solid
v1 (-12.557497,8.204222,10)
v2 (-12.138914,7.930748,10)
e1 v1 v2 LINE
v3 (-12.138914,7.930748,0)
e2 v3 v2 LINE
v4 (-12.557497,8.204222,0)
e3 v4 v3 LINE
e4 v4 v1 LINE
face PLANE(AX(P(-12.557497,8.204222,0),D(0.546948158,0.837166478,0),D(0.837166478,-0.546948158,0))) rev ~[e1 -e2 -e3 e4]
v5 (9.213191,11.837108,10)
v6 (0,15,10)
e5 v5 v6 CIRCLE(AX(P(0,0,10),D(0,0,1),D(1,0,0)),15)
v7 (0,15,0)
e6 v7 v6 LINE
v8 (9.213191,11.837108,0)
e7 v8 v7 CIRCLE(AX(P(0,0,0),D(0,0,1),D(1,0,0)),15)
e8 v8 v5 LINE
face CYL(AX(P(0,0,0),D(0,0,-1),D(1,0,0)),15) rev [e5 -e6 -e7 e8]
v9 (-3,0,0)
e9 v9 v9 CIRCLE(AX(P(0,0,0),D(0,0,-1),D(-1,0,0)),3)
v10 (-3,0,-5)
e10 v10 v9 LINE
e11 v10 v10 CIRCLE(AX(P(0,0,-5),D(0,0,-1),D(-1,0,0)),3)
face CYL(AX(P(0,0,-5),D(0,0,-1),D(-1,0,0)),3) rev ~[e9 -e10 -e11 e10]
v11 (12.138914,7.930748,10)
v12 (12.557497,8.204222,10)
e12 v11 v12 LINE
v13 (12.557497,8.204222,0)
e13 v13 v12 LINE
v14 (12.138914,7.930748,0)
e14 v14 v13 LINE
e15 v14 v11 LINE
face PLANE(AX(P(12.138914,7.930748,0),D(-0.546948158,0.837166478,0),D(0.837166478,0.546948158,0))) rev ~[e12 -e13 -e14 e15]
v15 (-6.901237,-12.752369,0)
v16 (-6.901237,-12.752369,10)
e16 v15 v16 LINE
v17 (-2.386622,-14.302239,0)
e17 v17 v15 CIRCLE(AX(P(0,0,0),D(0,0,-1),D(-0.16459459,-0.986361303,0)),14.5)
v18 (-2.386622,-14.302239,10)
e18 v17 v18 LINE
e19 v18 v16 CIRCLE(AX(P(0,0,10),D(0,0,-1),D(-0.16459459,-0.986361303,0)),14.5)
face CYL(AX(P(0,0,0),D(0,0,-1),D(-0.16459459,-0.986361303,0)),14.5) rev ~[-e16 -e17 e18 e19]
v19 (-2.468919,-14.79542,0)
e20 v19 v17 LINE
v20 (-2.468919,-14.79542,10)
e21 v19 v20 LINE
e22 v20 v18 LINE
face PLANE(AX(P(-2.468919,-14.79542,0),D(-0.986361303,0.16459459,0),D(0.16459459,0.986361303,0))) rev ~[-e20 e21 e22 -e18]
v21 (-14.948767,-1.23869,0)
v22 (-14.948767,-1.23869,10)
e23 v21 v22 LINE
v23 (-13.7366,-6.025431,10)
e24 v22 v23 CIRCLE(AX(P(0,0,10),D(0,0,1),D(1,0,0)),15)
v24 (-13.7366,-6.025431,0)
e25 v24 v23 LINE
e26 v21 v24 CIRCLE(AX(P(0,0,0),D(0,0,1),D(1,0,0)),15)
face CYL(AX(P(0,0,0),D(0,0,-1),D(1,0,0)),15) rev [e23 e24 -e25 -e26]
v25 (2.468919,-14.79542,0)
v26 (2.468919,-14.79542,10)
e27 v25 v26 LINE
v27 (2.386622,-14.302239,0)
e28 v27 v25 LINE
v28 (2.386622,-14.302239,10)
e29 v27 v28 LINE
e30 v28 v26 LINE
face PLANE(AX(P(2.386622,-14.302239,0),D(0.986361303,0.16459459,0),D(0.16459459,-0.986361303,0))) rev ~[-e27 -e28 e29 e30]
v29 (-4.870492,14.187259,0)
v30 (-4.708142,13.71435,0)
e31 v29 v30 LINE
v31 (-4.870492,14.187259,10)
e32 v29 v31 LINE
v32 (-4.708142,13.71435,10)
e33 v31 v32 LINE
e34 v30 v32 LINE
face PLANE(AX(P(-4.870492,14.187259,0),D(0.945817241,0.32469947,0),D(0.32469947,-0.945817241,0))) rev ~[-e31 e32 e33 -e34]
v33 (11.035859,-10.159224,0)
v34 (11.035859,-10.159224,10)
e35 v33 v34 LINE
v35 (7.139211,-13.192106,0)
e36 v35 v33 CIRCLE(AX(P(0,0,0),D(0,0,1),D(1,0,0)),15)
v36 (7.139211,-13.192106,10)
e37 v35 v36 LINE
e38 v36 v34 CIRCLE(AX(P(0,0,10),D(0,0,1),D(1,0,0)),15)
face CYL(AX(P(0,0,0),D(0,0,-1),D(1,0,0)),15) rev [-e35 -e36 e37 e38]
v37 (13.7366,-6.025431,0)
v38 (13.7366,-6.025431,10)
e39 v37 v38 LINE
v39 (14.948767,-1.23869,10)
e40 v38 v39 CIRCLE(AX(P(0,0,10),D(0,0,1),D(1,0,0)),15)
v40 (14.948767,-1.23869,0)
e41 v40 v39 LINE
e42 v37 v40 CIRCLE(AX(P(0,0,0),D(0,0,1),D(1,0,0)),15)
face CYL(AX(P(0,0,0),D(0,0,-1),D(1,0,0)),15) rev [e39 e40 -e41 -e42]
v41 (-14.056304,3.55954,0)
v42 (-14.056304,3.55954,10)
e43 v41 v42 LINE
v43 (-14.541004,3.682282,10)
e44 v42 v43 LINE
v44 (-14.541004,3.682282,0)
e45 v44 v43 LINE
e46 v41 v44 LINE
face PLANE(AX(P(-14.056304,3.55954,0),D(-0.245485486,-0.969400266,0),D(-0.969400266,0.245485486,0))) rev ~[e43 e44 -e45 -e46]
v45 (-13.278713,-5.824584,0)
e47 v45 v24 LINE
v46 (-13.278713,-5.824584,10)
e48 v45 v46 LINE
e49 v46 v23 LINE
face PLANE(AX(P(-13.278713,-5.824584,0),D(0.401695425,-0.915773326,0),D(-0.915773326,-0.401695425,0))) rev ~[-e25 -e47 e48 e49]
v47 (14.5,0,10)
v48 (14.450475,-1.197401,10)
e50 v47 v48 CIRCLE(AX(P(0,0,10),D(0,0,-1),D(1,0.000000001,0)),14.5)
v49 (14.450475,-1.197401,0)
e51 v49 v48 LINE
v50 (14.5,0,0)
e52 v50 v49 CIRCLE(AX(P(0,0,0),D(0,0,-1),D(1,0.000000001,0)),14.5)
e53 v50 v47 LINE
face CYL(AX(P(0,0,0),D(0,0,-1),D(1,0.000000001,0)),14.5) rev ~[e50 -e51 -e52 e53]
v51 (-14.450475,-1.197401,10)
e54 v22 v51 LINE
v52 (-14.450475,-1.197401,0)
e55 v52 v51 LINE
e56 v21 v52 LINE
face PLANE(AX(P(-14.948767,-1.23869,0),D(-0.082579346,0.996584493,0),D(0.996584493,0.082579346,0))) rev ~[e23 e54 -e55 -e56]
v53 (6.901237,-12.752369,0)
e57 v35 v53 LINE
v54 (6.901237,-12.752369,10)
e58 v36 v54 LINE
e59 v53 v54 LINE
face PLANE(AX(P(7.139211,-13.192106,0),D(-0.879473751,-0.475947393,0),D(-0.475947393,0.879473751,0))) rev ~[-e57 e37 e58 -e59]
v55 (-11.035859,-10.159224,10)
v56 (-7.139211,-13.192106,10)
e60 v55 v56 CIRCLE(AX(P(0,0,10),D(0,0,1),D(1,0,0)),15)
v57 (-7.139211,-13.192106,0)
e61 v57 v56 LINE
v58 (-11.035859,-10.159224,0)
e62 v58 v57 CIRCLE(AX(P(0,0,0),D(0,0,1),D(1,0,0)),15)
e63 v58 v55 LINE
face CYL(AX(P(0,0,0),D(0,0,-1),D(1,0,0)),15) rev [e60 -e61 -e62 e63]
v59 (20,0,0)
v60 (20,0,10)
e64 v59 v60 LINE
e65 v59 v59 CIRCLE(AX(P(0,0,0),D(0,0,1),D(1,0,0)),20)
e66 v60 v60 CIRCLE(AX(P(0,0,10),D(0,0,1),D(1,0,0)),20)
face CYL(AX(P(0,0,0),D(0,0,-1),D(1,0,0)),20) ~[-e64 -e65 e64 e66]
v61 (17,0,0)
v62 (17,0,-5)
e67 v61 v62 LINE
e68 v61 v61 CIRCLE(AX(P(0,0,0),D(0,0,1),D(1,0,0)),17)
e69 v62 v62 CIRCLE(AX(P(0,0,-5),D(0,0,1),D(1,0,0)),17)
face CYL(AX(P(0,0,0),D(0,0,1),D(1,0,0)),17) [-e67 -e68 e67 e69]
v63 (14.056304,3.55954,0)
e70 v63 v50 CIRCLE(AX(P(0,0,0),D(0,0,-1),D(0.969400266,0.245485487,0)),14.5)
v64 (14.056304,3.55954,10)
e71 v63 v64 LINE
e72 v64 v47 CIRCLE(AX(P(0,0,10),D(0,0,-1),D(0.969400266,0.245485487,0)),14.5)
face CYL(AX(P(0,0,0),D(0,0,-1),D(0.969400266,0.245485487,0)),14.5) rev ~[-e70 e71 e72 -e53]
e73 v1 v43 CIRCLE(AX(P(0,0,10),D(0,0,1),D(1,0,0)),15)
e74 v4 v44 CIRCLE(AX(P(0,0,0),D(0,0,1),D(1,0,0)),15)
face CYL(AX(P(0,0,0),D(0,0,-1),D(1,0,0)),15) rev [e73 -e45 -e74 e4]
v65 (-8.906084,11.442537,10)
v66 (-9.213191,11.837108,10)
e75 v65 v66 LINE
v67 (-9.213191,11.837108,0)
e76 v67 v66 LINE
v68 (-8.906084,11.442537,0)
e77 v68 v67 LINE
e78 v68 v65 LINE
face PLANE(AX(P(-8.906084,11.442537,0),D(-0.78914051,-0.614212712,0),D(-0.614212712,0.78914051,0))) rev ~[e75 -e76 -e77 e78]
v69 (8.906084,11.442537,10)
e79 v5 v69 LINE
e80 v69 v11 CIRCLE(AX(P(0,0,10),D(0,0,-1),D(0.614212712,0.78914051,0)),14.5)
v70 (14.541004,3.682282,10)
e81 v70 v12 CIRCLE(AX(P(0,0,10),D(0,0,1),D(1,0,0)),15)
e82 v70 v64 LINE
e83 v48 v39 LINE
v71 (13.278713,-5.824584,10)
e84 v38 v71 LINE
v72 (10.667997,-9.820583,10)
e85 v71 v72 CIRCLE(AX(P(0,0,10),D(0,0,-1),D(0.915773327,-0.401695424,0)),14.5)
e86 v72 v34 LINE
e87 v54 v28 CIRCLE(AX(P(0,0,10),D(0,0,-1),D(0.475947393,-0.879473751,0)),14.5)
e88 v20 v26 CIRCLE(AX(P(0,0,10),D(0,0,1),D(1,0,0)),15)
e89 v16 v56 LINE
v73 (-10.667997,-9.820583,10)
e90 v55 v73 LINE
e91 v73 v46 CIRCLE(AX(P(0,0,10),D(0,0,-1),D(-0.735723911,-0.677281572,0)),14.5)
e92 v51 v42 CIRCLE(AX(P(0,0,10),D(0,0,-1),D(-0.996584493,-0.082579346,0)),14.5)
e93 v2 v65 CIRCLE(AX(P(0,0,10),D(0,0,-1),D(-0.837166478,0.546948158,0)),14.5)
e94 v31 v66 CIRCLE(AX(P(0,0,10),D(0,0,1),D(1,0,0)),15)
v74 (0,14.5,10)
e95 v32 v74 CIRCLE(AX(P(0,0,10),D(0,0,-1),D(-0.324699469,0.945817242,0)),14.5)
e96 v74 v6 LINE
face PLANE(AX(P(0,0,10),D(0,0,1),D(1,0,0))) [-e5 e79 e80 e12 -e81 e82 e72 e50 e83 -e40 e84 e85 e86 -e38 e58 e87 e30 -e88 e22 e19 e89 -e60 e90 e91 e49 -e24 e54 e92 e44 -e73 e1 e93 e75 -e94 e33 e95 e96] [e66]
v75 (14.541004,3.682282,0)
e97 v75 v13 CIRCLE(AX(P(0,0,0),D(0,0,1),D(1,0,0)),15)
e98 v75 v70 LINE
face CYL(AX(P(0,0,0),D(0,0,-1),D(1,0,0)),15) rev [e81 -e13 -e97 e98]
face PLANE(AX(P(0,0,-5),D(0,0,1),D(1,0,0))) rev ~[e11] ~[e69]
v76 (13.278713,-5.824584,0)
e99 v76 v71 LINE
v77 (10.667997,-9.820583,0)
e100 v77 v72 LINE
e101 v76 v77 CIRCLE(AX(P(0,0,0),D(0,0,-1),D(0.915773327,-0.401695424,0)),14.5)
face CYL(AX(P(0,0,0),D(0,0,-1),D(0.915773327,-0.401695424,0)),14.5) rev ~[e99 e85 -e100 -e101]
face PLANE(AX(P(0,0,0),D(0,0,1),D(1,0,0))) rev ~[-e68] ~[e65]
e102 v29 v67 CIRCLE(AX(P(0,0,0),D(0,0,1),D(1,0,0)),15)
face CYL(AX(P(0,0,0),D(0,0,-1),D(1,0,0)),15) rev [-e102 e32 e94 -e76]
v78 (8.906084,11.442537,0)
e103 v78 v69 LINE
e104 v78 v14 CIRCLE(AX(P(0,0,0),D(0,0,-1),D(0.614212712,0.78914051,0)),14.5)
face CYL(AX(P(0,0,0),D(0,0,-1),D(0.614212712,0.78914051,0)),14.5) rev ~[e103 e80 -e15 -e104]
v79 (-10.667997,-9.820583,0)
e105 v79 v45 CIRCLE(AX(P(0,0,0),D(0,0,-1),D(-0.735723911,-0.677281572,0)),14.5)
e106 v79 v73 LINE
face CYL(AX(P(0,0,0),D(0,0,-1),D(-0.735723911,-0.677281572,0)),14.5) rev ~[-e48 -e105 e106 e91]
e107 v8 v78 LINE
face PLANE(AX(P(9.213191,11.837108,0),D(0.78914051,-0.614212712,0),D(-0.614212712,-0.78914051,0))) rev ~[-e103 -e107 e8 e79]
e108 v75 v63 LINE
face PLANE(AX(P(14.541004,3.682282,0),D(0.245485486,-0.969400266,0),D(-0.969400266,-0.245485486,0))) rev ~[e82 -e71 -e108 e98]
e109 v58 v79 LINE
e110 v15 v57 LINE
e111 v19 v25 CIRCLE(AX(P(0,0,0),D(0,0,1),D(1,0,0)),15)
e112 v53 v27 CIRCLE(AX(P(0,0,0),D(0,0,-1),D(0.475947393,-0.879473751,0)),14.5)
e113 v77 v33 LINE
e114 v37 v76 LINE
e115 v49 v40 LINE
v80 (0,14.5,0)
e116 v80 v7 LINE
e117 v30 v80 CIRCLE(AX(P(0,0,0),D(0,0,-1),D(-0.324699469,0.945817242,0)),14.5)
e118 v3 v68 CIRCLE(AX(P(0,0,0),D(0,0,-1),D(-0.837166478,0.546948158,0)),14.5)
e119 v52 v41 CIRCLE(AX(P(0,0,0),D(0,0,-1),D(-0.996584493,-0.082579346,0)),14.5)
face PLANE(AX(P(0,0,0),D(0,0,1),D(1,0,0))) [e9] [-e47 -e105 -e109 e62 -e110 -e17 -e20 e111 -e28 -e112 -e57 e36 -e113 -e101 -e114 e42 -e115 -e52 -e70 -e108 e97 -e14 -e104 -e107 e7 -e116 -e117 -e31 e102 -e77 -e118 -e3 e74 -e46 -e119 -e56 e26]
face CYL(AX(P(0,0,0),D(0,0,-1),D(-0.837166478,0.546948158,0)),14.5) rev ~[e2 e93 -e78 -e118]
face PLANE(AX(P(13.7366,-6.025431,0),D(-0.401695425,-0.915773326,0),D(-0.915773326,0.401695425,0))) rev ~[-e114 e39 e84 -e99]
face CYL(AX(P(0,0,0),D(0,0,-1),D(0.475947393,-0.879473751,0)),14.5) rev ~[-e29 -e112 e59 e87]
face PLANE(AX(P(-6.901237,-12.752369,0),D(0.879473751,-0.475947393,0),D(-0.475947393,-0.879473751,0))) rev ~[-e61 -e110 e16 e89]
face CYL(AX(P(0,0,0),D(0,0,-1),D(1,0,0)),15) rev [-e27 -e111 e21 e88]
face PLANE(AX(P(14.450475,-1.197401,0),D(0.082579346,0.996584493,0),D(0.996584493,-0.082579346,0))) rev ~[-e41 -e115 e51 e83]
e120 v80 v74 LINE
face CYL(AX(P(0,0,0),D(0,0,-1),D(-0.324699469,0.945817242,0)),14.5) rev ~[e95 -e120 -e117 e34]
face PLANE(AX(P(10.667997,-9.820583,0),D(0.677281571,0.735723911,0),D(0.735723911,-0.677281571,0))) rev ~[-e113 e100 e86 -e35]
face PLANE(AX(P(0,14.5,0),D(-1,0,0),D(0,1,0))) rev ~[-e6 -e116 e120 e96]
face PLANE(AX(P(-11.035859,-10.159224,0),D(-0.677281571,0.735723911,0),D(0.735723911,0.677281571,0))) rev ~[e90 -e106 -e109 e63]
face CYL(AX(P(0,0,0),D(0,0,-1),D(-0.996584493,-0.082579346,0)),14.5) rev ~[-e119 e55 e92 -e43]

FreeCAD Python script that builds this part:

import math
import FreeCAD as App
import Part
import Sketcher
Q = App.Units.Quantity

doc = App.newDocument("Part")
params = doc.addObject("Spreadsheet::Sheet", "Params")
for row, (alias, value) in enumerate([
    ("sketch1_diameter", "40 mm"),
    ("sketch1_radius", "15 mm"),
    ("sketch1_radius2", "14.5 mm"),
    ("pad1_length", "10 mm"),
    ("sketch2_diameter", "34 mm"),
    ("pad2_length", "5 mm"),
    ("sketch3_diameter", "6 mm"),
], start=1):
    params.set(f"A{row}", alias)
    params.set(f"B{row}", "=" + value)
    params.setAlias(f"B{row}", alias)

body = doc.addObject("PartDesign::Body", "Body")

sketch1 = body.newObject("Sketcher::SketchObject", "Sketch")
sketch1.AttachmentSupport = (doc.getObject("XY_Plane"), [""])
sketch1.MapMode = "FlatFace"
sketch1.addGeometry([
    Part.Circle(App.Vector(0, 0, 0), App.Vector(0, 0, 1), 20),
    Part.ArcOfCircle(Part.Circle(App.Vector(0, 0, 0), App.Vector(0, 0, 1), 15), math.radians(14.21), math.radians(33.16)),
    Part.LineSegment(App.Vector(14.54, 3.68, 0), App.Vector(14.06, 3.56, 0)),
    Part.ArcOfCircle(Part.Circle(App.Vector(0, 0, 0), App.Vector(0, 0, 1), 14.5), math.radians(0), math.radians(14.21)),
    Part.ArcOfCircle(Part.Circle(App.Vector(0, 0, 0), App.Vector(0, 0, 1), 14.5), math.radians(-4.74), math.radians(0)),
    Part.LineSegment(App.Vector(14.45, -1.2, 0), App.Vector(14.95, -1.24, 0)),
    Part.ArcOfCircle(Part.Circle(App.Vector(0, 0, 0), App.Vector(0, 0, 1), 15), math.radians(-23.68), math.radians(-4.74)),
    Part.LineSegment(App.Vector(13.74, -6.03, 0), App.Vector(13.28, -5.82, 0)),
    Part.ArcOfCircle(Part.Circle(App.Vector(0, 0, 0), App.Vector(0, 0, 1), 14.5), math.radians(-42.63), math.radians(-23.68)),
    Part.LineSegment(App.Vector(10.67, -9.82, 0), App.Vector(11.04, -10.16, 0)),
    Part.ArcOfCircle(Part.Circle(App.Vector(0, 0, 0), App.Vector(0, 0, 1), 15), math.radians(-61.58), math.radians(-42.63)),
    Part.LineSegment(App.Vector(7.14, -13.19, 0), App.Vector(6.9, -12.75, 0)),
    Part.ArcOfCircle(Part.Circle(App.Vector(0, 0, 0), App.Vector(0, 0, 1), 14.5), math.radians(-80.53), math.radians(-61.58)),
    Part.LineSegment(App.Vector(2.39, -14.3, 0), App.Vector(2.47, -14.8, 0)),
    Part.ArcOfCircle(Part.Circle(App.Vector(0, 0, 0), App.Vector(0, 0, 1), 15), math.radians(-99.47), math.radians(-80.53)),
    Part.LineSegment(App.Vector(-2.47, -14.8, 0), App.Vector(-2.39, -14.3, 0)),
    Part.ArcOfCircle(Part.Circle(App.Vector(0, 0, 0), App.Vector(0, 0, 1), 14.5), math.radians(-118.42), math.radians(-99.47)),
    Part.LineSegment(App.Vector(-6.9, -12.75, 0), App.Vector(-7.14, -13.19, 0)),
    Part.ArcOfCircle(Part.Circle(App.Vector(0, 0, 0), App.Vector(0, 0, 1), 15), math.radians(-137.37), math.radians(-118.42)),
    Part.LineSegment(App.Vector(-11.04, -10.16, 0), App.Vector(-10.67, -9.82, 0)),
    Part.ArcOfCircle(Part.Circle(App.Vector(0, 0, 0), App.Vector(0, 0, 1), 14.5), math.radians(-156.32), math.radians(-137.37)),
    Part.LineSegment(App.Vector(-13.28, -5.82, 0), App.Vector(-13.74, -6.03, 0)),
    Part.ArcOfCircle(Part.Circle(App.Vector(0, 0, 0), App.Vector(0, 0, 1), 15), math.radians(-175.26), math.radians(-156.32)),
    Part.LineSegment(App.Vector(-14.95, -1.24, 0), App.Vector(-14.45, -1.2, 0)),
    Part.ArcOfCircle(Part.Circle(App.Vector(0, 0, 0), App.Vector(0, 0, 1), 14.5), math.radians(165.79), math.radians(184.74)),
    Part.LineSegment(App.Vector(-14.06, 3.56, 0), App.Vector(-14.54, 3.68, 0)),
    Part.ArcOfCircle(Part.Circle(App.Vector(0, 0, 0), App.Vector(0, 0, 1), 15), math.radians(146.84), math.radians(165.79)),
    Part.LineSegment(App.Vector(-12.56, 8.2, 0), App.Vector(-12.14, 7.93, 0)),
    Part.ArcOfCircle(Part.Circle(App.Vector(0, 0, 0), App.Vector(0, 0, 1), 14.5), math.radians(127.89), math.radians(146.84)),
    Part.LineSegment(App.Vector(-8.91, 11.44, 0), App.Vector(-9.21, 11.84, 0)),
    Part.ArcOfCircle(Part.Circle(App.Vector(0, 0, 0), App.Vector(0, 0, 1), 15), math.radians(108.95), math.radians(127.89)),
    Part.LineSegment(App.Vector(-4.87, 14.19, 0), App.Vector(-4.71, 13.71, 0)),
    Part.ArcOfCircle(Part.Circle(App.Vector(0, 0, 0), App.Vector(0, 0, 1), 14.5), math.radians(90), math.radians(108.95)),
    Part.LineSegment(App.Vector(0, 14.5, 0), App.Vector(0, 15, 0)),
    Part.ArcOfCircle(Part.Circle(App.Vector(0, 0, 0), App.Vector(0, 0, 1), 15), math.radians(52), math.radians(90)),
    Part.LineSegment(App.Vector(9.21, 11.84, 0), App.Vector(8.91, 11.44, 0)),
    Part.ArcOfCircle(Part.Circle(App.Vector(0, 0, 0), App.Vector(0, 0, 1), 14.5), math.radians(33.16), math.radians(52.11)),
    Part.LineSegment(App.Vector(12.14, 7.93, 0), App.Vector(12.56, 8.2, 0)),
], False)
sketch1.addConstraint([
    Sketcher.Constraint("Coincident", 1, 1, 2, 1),
    Sketcher.Constraint("Coincident", 2, 2, 3, 2),
    Sketcher.Constraint("Tangent", 3, 1, 4, 2),
    Sketcher.Constraint("Coincident", 4, 1, 5, 1),
    Sketcher.Constraint("Coincident", 5, 2, 6, 2),
    Sketcher.Constraint("Coincident", 6, 1, 7, 1),
    Sketcher.Constraint("Coincident", 7, 2, 8, 2),
    Sketcher.Constraint("Coincident", 8, 1, 9, 1),
    Sketcher.Constraint("Coincident", 9, 2, 10, 2),
    Sketcher.Constraint("Coincident", 10, 1, 11, 1),
    Sketcher.Constraint("Coincident", 11, 2, 12, 2),
    Sketcher.Constraint("Coincident", 12, 1, 13, 1),
    Sketcher.Constraint("Coincident", 13, 2, 14, 2),
    Sketcher.Constraint("Coincident", 14, 1, 15, 1),
    Sketcher.Constraint("Coincident", 15, 2, 16, 2),
    Sketcher.Constraint("Coincident", 16, 1, 17, 1),
    Sketcher.Constraint("Coincident", 17, 2, 18, 2),
    Sketcher.Constraint("Coincident", 18, 1, 19, 1),
    Sketcher.Constraint("Coincident", 19, 2, 20, 2),
    Sketcher.Constraint("Coincident", 20, 1, 21, 1),
    Sketcher.Constraint("Coincident", 21, 2, 22, 2),
    Sketcher.Constraint("Coincident", 22, 1, 23, 1),
    Sketcher.Constraint("Coincident", 23, 2, 24, 2),
    Sketcher.Constraint("Coincident", 24, 1, 25, 1),
    Sketcher.Constraint("Coincident", 25, 2, 26, 2),
    Sketcher.Constraint("Coincident", 26, 1, 27, 1),
    Sketcher.Constraint("Coincident", 27, 2, 28, 2),
    Sketcher.Constraint("Coincident", 28, 1, 29, 1),
    Sketcher.Constraint("Coincident", 29, 2, 30, 2),
    Sketcher.Constraint("Coincident", 30, 1, 31, 1),
    Sketcher.Constraint("Coincident", 31, 2, 32, 2),
    Sketcher.Constraint("Coincident", 32, 1, 33, 1),
    Sketcher.Constraint("Coincident", 33, 2, 34, 2),
    Sketcher.Constraint("Coincident", 34, 1, 35, 1),
    Sketcher.Constraint("Coincident", 35, 2, 36, 2),
    Sketcher.Constraint("Coincident", 36, 1, 37, 1),
    Sketcher.Constraint("Coincident", 37, 2, 1, 2),
    Sketcher.Constraint("Vertical", 33),
    Sketcher.Constraint("Coincident", 0, 3, -1, 1),
    Sketcher.Constraint("Coincident", 1, 3, -1, 1),
    Sketcher.Constraint("Coincident", 3, 3, -1, 1),
    Sketcher.Constraint("Coincident", 6, 3, -1, 1),
    Sketcher.Constraint("Coincident", 8, 3, -1, 1),
    Sketcher.Constraint("Coincident", 10, 3, -1, 1),
    Sketcher.Constraint("Coincident", 12, 3, -1, 1),
    Sketcher.Constraint("Coincident", 14, 3, -1, 1),
    Sketcher.Constraint("Coincident", 16, 3, -1, 1),
    Sketcher.Constraint("Coincident", 18, 3, -1, 1),
    Sketcher.Constraint("Coincident", 20, 3, -1, 1),
    Sketcher.Constraint("Coincident", 22, 3, -1, 1),
    Sketcher.Constraint("Coincident", 24, 3, -1, 1),
    Sketcher.Constraint("Coincident", 26, 3, -1, 1),
    Sketcher.Constraint("Coincident", 28, 3, -1, 1),
    Sketcher.Constraint("Coincident", 30, 3, -1, 1),
    Sketcher.Constraint("Coincident", 32, 3, -1, 1),
    Sketcher.Constraint("Coincident", 34, 3, -1, 1),
    Sketcher.Constraint("Coincident", 36, 3, -1, 1),
    Sketcher.Constraint("Equal", 3, 4),
    Sketcher.Constraint("Equal", 1, 6),
    Sketcher.Constraint("Equal", 4, 8),
    Sketcher.Constraint("Equal", 6, 10),
    Sketcher.Constraint("Equal", 8, 12),
    Sketcher.Constraint("Equal", 10, 14),
    Sketcher.Constraint("Equal", 12, 16),
    Sketcher.Constraint("Equal", 14, 18),
    Sketcher.Constraint("Equal", 16, 20),
    Sketcher.Constraint("Equal", 18, 22),
    Sketcher.Constraint("Equal", 20, 24),
    Sketcher.Constraint("Equal", 22, 26),
    Sketcher.Constraint("Equal", 24, 28),
    Sketcher.Constraint("Equal", 26, 30),
    Sketcher.Constraint("Equal", 28, 32),
    Sketcher.Constraint("Equal", 30, 34),
    Sketcher.Constraint("Equal", 32, 36),
    Sketcher.Constraint("PointOnObject", 3, 1, -1),
    Sketcher.Constraint("PointOnObject", 32, 1, -2),
    Sketcher.Constraint("Horizontal", 13, 2, 14, 1),
    Sketcher.Constraint("Horizontal", 12, 1, 15, 2),
    Sketcher.Constraint("Horizontal", 11, 2, 16, 1),
    Sketcher.Constraint("Horizontal", 10, 1, 17, 2),
    Sketcher.Constraint("Horizontal", 9, 2, 18, 1),
    Sketcher.Constraint("Horizontal", 8, 1, 19, 2),
    Sketcher.Constraint("Horizontal", 7, 2, 20, 1),
    Sketcher.Constraint("Horizontal", 6, 1, 21, 2),
    Sketcher.Constraint("Horizontal", 5, 2, 22, 1),
    Sketcher.Constraint("Horizontal", 4, 1, 23, 2),
    Sketcher.Constraint("Horizontal", 2, 2, 24, 1),
    Sketcher.Constraint("Horizontal", 1, 1, 25, 2),
    Sketcher.Constraint("Horizontal", 29, 2, 34, 1),
    Sketcher.Constraint("Horizontal", 28, 1, 35, 2),
    Sketcher.Constraint("Horizontal", 27, 2, 36, 1),
    Sketcher.Constraint("Horizontal", 26, 1, 37, 2),
    Sketcher.Constraint("Diameter", 0, Q("40 mm")),
    Sketcher.Constraint("Radius", 1, Q("15 mm")),
    Sketcher.Constraint("Radius", 3, Q("14.5 mm")),
    Sketcher.Constraint("DistanceY", 8, 1, 7, 2, Q("3.995999 mm")),
    Sketcher.Constraint("DistanceY", 4, 1, -1, 1, Q("1.197401 mm")),
    Sketcher.Constraint("DistanceX", -1, 1, 6, 1, Q("13.7366 mm")),
    Sketcher.Constraint("DistanceX", 2, 2, 1, 1, Q("0.4847 mm")),
    Sketcher.Constraint("DistanceX", 29, 2, 30, 1, Q("4.342699 mm")),
    Sketcher.Constraint("DistanceY", 27, 2, 31, 2, Q("5.783602 mm")),
    Sketcher.Constraint("DistanceY", -1, 1, 2, 2, Q("3.55954 mm")),
    Sketcher.Constraint("DistanceY", 5, 2, -1, 1, Q("1.23869 mm")),
    Sketcher.Constraint("DistanceX", -1, 1, 9, 2, Q("11.035859 mm")),
    Sketcher.Constraint("DistanceX", -1, 1, 10, 1, Q("7.139211 mm")),
    Sketcher.Constraint("DistanceY", 11, 2, -1, 1, Q("12.752369 mm")),
    Sketcher.Constraint("DistanceX", -1, 1, 12, 1, Q("2.386622 mm")),
    Sketcher.Constraint("DistanceX", -1, 1, 13, 2, Q("2.468919 mm")),
    Sketcher.Constraint("DistanceY", -1, 1, 27, 2, Q("7.930748 mm")),
    Sketcher.Constraint("DistanceX", 29, 2, -1, 1, Q("9.213191 mm")),
    Sketcher.Constraint("DistanceX", 7, 2, 4, 1, Q("1.171762 mm")),
    Sketcher.Constraint("DistanceY", 25, 2, 26, 1, Q("4.52194 mm")),
    Sketcher.Constraint("DistanceX", 27, 2, 28, 1, Q("3.23283 mm")),
])
sketch1.setExpression("Constraints[92]", "Params.sketch1_diameter")
sketch1.setExpression("Constraints[93]", "Params.sketch1_radius")
sketch1.setExpression("Constraints[94]", "Params.sketch1_radius2")
pad1 = body.newObject("PartDesign::Pad", "Pad")
pad1.Profile = sketch1
pad1.setExpression("Length", "Params.pad1_length")

sketch2 = body.newObject("Sketcher::SketchObject", "Sketch001")
sketch2.AttachmentSupport = (doc.getObject("XY_Plane"), [""])
sketch2.MapMode = "FlatFace"
sketch2.addGeometry(Part.Circle(App.Vector(0, 0, 0), App.Vector(0, 0, 1), 17), False)
sketch2.addConstraint([
    Sketcher.Constraint("Coincident", 0, 3, -1, 1),
    Sketcher.Constraint("Diameter", 0, Q("34 mm")),
])
sketch2.setExpression("Constraints[1]", "Params.sketch2_diameter")
pad2 = body.newObject("PartDesign::Pad", "Pad001")
pad2.Profile = sketch2
pad2.setExpression("Length", "Params.pad2_length")
pad2.Reversed = True

sketch3 = body.newObject("Sketcher::SketchObject", "Sketch002")
sketch3.AttachmentSupport = (doc.getObject("XY_Plane"), [""])
sketch3.MapMode = "FlatFace"
sketch3.AttachmentOffset = App.Placement(App.Vector(0, 0, -5), App.Rotation())
sketch3.addGeometry(Part.Circle(App.Vector(0, 0, 0), App.Vector(0, 0, 1), 3), False)
sketch3.addConstraint([
    Sketcher.Constraint("Coincident", 0, 3, -1, 1),
    Sketcher.Constraint("Diameter", 0, Q("6 mm")),
])
sketch3.setExpression("Constraints[1]", "Params.sketch3_diameter")
pocket1 = body.newObject("PartDesign::Pocket", "Pocket")
pocket1.Profile = sketch3
pocket1.Type = "ThroughAll"
pocket1.Reversed = True

doc.recompute()
